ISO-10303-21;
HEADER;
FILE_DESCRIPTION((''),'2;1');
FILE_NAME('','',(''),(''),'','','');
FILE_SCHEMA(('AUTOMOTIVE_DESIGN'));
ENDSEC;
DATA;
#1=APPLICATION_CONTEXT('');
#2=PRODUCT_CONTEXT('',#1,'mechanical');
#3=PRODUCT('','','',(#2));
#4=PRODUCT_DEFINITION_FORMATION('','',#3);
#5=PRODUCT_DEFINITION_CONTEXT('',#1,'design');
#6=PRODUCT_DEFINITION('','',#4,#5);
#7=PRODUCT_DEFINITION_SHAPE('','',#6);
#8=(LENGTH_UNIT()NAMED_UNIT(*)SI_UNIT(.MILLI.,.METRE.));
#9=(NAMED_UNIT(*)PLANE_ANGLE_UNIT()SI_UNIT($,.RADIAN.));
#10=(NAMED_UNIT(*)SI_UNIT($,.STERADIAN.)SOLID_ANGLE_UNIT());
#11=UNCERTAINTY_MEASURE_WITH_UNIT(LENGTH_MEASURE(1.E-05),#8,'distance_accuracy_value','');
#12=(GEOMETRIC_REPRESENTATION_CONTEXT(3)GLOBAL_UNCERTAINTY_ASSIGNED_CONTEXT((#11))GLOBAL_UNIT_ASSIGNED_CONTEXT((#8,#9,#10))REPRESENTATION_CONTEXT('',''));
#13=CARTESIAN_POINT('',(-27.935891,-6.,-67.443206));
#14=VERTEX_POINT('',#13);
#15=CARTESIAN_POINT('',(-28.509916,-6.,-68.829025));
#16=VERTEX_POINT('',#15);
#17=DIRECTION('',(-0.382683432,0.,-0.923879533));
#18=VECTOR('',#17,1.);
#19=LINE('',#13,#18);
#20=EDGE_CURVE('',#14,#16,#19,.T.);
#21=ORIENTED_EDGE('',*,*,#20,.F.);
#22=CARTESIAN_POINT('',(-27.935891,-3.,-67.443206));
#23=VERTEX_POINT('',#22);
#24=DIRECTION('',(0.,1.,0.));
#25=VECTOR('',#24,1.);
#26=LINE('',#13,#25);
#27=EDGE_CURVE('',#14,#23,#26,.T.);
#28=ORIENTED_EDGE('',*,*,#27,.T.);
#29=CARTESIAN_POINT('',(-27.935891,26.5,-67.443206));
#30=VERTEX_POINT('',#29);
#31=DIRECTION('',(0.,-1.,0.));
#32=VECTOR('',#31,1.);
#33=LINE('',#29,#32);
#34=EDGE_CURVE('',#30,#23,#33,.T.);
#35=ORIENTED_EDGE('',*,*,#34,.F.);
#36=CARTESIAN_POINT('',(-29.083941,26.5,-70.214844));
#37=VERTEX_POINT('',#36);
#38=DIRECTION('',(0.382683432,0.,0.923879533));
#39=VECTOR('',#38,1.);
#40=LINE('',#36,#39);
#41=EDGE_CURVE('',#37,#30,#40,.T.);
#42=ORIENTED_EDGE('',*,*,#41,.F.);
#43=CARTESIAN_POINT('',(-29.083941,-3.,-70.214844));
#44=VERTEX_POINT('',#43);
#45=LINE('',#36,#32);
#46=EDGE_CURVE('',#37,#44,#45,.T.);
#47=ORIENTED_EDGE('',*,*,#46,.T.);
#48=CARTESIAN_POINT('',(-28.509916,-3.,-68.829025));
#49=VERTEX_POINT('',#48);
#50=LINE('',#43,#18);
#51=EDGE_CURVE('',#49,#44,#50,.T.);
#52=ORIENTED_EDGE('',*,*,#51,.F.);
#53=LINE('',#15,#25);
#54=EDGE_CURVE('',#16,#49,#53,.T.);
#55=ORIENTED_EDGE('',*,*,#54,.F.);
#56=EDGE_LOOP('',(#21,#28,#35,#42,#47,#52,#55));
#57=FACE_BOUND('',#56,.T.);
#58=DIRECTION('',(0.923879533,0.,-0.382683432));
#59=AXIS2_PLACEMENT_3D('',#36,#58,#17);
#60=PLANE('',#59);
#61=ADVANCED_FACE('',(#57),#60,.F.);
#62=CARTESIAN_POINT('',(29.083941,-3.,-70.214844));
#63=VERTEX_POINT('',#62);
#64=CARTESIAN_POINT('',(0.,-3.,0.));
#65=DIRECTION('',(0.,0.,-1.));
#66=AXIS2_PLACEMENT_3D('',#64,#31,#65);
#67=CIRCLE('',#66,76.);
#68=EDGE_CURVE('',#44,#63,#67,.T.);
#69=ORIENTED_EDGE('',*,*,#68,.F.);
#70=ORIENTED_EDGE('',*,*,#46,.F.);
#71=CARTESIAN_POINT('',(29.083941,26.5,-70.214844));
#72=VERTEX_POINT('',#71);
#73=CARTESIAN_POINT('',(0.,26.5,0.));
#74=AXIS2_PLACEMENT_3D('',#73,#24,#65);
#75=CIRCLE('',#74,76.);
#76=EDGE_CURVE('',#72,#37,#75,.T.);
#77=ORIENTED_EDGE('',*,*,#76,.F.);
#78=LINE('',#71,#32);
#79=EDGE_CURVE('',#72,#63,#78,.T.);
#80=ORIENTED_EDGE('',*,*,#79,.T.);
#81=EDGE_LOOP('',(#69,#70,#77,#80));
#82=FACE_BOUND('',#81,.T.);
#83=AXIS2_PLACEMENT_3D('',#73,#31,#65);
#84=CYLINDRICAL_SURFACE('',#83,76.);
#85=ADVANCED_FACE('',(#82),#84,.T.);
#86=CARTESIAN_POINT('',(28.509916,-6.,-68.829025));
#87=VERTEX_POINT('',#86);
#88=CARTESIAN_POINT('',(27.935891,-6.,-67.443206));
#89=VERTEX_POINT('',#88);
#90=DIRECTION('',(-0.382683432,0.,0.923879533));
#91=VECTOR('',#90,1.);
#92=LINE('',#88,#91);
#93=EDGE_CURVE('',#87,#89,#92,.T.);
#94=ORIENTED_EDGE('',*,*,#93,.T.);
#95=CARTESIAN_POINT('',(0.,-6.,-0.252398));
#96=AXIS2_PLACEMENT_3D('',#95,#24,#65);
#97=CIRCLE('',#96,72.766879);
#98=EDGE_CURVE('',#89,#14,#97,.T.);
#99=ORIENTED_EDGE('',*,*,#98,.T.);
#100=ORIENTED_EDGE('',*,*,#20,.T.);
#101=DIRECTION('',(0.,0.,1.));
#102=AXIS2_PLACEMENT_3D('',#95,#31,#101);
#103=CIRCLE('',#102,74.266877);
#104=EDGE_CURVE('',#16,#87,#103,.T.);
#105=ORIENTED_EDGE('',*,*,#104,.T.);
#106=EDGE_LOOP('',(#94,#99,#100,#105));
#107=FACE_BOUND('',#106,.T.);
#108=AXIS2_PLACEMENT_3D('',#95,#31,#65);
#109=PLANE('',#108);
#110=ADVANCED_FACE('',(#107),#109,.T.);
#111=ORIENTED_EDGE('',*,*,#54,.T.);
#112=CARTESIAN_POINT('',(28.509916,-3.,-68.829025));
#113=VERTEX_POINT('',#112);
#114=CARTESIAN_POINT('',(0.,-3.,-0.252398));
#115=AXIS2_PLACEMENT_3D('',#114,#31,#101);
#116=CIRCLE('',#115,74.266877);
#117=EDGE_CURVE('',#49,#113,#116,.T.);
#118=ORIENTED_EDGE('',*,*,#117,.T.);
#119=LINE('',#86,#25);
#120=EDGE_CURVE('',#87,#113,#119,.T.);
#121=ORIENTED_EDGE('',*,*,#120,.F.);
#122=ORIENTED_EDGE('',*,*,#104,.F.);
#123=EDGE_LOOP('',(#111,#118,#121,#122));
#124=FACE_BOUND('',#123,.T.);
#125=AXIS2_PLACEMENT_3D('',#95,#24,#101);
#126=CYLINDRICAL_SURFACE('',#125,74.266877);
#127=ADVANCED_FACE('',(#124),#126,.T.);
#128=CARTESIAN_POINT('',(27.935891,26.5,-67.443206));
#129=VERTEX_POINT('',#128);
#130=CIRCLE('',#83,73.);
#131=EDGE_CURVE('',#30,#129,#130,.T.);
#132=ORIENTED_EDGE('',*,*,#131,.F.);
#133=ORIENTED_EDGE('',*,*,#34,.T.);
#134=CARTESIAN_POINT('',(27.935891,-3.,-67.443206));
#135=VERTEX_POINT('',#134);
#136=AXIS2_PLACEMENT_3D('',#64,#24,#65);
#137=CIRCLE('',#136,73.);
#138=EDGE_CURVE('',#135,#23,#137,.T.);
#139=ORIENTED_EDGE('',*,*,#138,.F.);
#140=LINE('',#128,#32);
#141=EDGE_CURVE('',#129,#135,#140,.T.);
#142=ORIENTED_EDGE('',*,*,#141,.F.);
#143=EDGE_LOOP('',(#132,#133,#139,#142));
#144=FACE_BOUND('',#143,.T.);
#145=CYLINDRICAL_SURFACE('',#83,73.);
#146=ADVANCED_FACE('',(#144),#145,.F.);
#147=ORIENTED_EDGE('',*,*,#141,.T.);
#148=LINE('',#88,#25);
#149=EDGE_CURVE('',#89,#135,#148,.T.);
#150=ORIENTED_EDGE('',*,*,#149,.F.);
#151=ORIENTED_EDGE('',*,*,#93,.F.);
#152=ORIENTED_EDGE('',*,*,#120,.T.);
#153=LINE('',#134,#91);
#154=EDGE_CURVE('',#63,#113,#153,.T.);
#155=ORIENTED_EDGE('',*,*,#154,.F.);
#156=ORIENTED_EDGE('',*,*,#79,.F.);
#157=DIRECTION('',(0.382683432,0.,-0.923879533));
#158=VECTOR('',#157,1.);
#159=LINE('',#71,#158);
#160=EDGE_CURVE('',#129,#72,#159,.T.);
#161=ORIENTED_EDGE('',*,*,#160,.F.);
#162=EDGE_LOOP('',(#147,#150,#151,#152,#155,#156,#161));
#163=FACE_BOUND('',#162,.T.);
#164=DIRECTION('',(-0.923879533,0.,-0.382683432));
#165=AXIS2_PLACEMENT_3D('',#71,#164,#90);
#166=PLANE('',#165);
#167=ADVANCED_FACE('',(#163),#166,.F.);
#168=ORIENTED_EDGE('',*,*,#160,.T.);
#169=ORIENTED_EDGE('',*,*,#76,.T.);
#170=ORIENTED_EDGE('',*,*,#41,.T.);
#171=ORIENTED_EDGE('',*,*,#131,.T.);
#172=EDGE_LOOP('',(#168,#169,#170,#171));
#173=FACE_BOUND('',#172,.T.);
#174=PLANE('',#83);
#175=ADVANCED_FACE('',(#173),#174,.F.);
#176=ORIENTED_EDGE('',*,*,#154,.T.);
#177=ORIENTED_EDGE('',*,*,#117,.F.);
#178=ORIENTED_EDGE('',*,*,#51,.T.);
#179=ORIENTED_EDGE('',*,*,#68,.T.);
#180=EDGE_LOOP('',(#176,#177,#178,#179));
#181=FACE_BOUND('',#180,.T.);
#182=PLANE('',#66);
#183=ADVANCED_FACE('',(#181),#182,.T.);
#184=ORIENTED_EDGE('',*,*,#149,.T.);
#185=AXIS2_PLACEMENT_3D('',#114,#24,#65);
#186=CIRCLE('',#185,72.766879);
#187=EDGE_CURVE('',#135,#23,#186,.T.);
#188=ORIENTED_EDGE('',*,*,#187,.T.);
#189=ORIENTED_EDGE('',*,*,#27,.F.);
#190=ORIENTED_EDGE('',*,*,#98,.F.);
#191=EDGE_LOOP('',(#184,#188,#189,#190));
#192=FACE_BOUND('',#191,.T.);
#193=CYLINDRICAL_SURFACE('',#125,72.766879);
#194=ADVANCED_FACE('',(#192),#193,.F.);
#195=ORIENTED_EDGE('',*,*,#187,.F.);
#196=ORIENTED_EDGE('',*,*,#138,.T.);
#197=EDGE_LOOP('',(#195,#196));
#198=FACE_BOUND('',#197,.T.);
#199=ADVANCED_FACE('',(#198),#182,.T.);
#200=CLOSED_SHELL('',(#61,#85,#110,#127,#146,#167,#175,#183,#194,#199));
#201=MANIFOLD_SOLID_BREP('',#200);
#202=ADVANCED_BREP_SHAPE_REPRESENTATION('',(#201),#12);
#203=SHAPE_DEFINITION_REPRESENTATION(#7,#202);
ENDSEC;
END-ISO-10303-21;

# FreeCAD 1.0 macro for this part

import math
import FreeCAD as App
import Part
import Sketcher

V = App.Vector
Q = App.Units.Quantity

doc = App.newDocument("Part")
body = doc.addObject("PartDesign::Body", "Body")

# Sketch on XZ plane
sketch1 = body.newObject("Sketcher::SketchObject", "Sketch")
sketch1.AttachmentSupport = (doc.getObject("XZ_Plane"), [""])
sketch1.MapMode = "FlatFace"
sketch1.addGeometry(Part.LineSegment(V(27.935891, -67.443206, 0), V(29.083941, -70.214844, 0)), False)
sketch1.addGeometry(Part.ArcOfCircle(Part.Circle(V(0, 0, 0), V(0, 0, 1), 76), math.radians(-112.5), math.radians(-67.5)), False)
sketch1.addGeometry(Part.LineSegment(V(-29.083941, -70.214844, 0), V(-27.935891, -67.443206, 0)), False)
sketch1.addGeometry(Part.ArcOfCircle(Part.Circle(V(0, 0, 0), V(0, 0, 1), 73), math.radians(-112.5), math.radians(-67.5)), False)
sketch1.addConstraint(Sketcher.Constraint("Coincident", 0, 2, 1, 2))
sketch1.addConstraint(Sketcher.Constraint("Coincident", 1, 1, 2, 1))
sketch1.addConstraint(Sketcher.Constraint("Coincident", 2, 2, 3, 1))
sketch1.addConstraint(Sketcher.Constraint("Coincident", 3, 2, 0, 1))
sketch1.addConstraint(Sketcher.Constraint("Coincident", 1, 3, -1, 1))
sketch1.addConstraint(Sketcher.Constraint("Coincident", 3, 3, -1, 1))
sketch1.addConstraint(Sketcher.Constraint("Horizontal", 0, 2, 1, 1))
sketch1.addConstraint(Sketcher.Constraint("Horizontal", 2, 2, 3, 2))
sketch1.addConstraint(Sketcher.Constraint("Radius", 1, 76.0))
sketch1.addConstraint(Sketcher.Constraint("Radius", 3, 73.0))
sketch1.addConstraint(Sketcher.Constraint("Angle", 0, Q("-67.5 deg")))
sketch1.addConstraint(Sketcher.Constraint("DistanceX", -1, 1, 0, 2, 29.083941))
pad1 = body.newObject("PartDesign::Pad", "Pad")
pad1.Profile = sketch1
pad1.Length = 26.5
pad1.Reversed = True

# Sketch on XZ plane
sketch2 = body.newObject("Sketcher::SketchObject", "Sketch001")
sketch2.AttachmentSupport = (doc.getObject("XZ_Plane"), [""])
sketch2.MapMode = "FlatFace"
sketch2.AttachmentOffset = App.Placement(V(0, 0, 3), App.Rotation())
sketch2.addGeometry(Part.LineSegment(V(29.083941, -70.214844, 0), V(27.935891, -67.443206, 0)), False)
sketch2.addGeometry(Part.ArcOfCircle(Part.Circle(V(0, 0, 0), V(0, 0, 1), 73), math.radians(-112.5), math.radians(-67.5)), False)
sketch2.addGeometry(Part.LineSegment(V(-27.935891, -67.443206, 0), V(-29.083941, -70.214844, 0)), False)
sketch2.addGeometry(Part.ArcOfCircle(Part.Circle(V(0, 0, 0), V(0, 0, 1), 76), math.radians(-112.5), math.radians(-67.5)), False)
sketch2.addConstraint(Sketcher.Constraint("Coincident", 0, 2, 1, 2))
sketch2.addConstraint(Sketcher.Constraint("Coincident", 1, 1, 2, 1))
sketch2.addConstraint(Sketcher.Constraint("Coincident", 2, 2, 3, 1))
sketch2.addConstraint(Sketcher.Constraint("Coincident", 3, 2, 0, 1))
sketch2.addConstraint(Sketcher.Constraint("Coincident", 1, 3, -1, 1))
sketch2.addConstraint(Sketcher.Constraint("Coincident", 3, 3, -1, 1))
sketch2.addConstraint(Sketcher.Constraint("Horizontal", 0, 2, 1, 1))
sketch2.addConstraint(Sketcher.Constraint("Horizontal", 2, 2, 3, 2))
sketch2.addConstraint(Sketcher.Constraint("Radius", 1, 73.0))
sketch2.addConstraint(Sketcher.Constraint("Radius", 3, 76.0))
sketch2.addConstraint(Sketcher.Constraint("Angle", 0, Q("112.5 deg")))
sketch2.addConstraint(Sketcher.Constraint("DistanceX", -1, 1, 0, 2, 27.935891))
pad2 = body.newObject("PartDesign::Pad", "Pad001")
pad2.Profile = sketch2
pad2.Length = 3
pad2.Reversed = True

# Sketch on XZ plane
sketch3 = body.newObject("Sketcher::SketchObject", "Sketch002")
sketch3.AttachmentSupport = (doc.getObject("XZ_Plane"), [""])
sketch3.MapMode = "FlatFace"
sketch3.AttachmentOffset = App.Placement(V(0, 0, 3), App.Rotation())
sketch3.addGeometry(Part.LineSegment(V(28.509916, -68.829025, 0), V(27.935891, -67.443206, 0)), False)
sketch3.addGeometry(Part.ArcOfCircle(Part.Circle(V(0, -0.252398, 0), V(0, 0, 1), 72.766879), math.radians(-112.576053), math.radians(-67.423947)), False)
sketch3.addGeometry(Part.LineSegment(V(-27.935891, -67.443206, 0), V(-28.509916, -68.829025, 0)), False)
sketch3.addGeometry(Part.ArcOfCircle(Part.Circle(V(0, -0.252398, 0), V(0, 0, 1), 74.266877), math.radians(-112.574517), math.radians(-67.425483)), False)
sketch3.addConstraint(Sketcher.Constraint("Coincident", 0, 2, 1, 2))
sketch3.addConstraint(Sketcher.Constraint("Coincident", 1, 1, 2, 1))
sketch3.addConstraint(Sketcher.Constraint("Coincident", 2, 2, 3, 1))
sketch3.addConstraint(Sketcher.Constraint("Coincident", 3, 2, 0, 1))
sketch3.addConstraint(Sketcher.Constraint("Coincident", 3, 3, 1, 3))
sketch3.addConstraint(Sketcher.Constraint("Symmetric", 0, 2, 1, 1, -2))
sketch3.addConstraint(Sketcher.Constraint("Horizontal", 2, 2, 3, 2))
sketch3.addConstraint(Sketcher.Constraint("Angle", 0, Q("112.5 deg")))
sketch3.addConstraint(Sketcher.Constraint("Distance", 0, 1.5))
sketch3.addConstraint(Sketcher.Constraint("Radius", 1, 72.766879))
sketch3.addConstraint(Sketcher.Constraint("DistanceY", 1, 3, -1, 1, 0.252398))
sketch3.addConstraint(Sketcher.Constraint("DistanceX", -1, 1, 0, 2, 27.935891))
pad3 = body.newObject("PartDesign::Pad", "Pad002")
pad3.Profile = sketch3
pad3.Length = 3

doc.recompute()
